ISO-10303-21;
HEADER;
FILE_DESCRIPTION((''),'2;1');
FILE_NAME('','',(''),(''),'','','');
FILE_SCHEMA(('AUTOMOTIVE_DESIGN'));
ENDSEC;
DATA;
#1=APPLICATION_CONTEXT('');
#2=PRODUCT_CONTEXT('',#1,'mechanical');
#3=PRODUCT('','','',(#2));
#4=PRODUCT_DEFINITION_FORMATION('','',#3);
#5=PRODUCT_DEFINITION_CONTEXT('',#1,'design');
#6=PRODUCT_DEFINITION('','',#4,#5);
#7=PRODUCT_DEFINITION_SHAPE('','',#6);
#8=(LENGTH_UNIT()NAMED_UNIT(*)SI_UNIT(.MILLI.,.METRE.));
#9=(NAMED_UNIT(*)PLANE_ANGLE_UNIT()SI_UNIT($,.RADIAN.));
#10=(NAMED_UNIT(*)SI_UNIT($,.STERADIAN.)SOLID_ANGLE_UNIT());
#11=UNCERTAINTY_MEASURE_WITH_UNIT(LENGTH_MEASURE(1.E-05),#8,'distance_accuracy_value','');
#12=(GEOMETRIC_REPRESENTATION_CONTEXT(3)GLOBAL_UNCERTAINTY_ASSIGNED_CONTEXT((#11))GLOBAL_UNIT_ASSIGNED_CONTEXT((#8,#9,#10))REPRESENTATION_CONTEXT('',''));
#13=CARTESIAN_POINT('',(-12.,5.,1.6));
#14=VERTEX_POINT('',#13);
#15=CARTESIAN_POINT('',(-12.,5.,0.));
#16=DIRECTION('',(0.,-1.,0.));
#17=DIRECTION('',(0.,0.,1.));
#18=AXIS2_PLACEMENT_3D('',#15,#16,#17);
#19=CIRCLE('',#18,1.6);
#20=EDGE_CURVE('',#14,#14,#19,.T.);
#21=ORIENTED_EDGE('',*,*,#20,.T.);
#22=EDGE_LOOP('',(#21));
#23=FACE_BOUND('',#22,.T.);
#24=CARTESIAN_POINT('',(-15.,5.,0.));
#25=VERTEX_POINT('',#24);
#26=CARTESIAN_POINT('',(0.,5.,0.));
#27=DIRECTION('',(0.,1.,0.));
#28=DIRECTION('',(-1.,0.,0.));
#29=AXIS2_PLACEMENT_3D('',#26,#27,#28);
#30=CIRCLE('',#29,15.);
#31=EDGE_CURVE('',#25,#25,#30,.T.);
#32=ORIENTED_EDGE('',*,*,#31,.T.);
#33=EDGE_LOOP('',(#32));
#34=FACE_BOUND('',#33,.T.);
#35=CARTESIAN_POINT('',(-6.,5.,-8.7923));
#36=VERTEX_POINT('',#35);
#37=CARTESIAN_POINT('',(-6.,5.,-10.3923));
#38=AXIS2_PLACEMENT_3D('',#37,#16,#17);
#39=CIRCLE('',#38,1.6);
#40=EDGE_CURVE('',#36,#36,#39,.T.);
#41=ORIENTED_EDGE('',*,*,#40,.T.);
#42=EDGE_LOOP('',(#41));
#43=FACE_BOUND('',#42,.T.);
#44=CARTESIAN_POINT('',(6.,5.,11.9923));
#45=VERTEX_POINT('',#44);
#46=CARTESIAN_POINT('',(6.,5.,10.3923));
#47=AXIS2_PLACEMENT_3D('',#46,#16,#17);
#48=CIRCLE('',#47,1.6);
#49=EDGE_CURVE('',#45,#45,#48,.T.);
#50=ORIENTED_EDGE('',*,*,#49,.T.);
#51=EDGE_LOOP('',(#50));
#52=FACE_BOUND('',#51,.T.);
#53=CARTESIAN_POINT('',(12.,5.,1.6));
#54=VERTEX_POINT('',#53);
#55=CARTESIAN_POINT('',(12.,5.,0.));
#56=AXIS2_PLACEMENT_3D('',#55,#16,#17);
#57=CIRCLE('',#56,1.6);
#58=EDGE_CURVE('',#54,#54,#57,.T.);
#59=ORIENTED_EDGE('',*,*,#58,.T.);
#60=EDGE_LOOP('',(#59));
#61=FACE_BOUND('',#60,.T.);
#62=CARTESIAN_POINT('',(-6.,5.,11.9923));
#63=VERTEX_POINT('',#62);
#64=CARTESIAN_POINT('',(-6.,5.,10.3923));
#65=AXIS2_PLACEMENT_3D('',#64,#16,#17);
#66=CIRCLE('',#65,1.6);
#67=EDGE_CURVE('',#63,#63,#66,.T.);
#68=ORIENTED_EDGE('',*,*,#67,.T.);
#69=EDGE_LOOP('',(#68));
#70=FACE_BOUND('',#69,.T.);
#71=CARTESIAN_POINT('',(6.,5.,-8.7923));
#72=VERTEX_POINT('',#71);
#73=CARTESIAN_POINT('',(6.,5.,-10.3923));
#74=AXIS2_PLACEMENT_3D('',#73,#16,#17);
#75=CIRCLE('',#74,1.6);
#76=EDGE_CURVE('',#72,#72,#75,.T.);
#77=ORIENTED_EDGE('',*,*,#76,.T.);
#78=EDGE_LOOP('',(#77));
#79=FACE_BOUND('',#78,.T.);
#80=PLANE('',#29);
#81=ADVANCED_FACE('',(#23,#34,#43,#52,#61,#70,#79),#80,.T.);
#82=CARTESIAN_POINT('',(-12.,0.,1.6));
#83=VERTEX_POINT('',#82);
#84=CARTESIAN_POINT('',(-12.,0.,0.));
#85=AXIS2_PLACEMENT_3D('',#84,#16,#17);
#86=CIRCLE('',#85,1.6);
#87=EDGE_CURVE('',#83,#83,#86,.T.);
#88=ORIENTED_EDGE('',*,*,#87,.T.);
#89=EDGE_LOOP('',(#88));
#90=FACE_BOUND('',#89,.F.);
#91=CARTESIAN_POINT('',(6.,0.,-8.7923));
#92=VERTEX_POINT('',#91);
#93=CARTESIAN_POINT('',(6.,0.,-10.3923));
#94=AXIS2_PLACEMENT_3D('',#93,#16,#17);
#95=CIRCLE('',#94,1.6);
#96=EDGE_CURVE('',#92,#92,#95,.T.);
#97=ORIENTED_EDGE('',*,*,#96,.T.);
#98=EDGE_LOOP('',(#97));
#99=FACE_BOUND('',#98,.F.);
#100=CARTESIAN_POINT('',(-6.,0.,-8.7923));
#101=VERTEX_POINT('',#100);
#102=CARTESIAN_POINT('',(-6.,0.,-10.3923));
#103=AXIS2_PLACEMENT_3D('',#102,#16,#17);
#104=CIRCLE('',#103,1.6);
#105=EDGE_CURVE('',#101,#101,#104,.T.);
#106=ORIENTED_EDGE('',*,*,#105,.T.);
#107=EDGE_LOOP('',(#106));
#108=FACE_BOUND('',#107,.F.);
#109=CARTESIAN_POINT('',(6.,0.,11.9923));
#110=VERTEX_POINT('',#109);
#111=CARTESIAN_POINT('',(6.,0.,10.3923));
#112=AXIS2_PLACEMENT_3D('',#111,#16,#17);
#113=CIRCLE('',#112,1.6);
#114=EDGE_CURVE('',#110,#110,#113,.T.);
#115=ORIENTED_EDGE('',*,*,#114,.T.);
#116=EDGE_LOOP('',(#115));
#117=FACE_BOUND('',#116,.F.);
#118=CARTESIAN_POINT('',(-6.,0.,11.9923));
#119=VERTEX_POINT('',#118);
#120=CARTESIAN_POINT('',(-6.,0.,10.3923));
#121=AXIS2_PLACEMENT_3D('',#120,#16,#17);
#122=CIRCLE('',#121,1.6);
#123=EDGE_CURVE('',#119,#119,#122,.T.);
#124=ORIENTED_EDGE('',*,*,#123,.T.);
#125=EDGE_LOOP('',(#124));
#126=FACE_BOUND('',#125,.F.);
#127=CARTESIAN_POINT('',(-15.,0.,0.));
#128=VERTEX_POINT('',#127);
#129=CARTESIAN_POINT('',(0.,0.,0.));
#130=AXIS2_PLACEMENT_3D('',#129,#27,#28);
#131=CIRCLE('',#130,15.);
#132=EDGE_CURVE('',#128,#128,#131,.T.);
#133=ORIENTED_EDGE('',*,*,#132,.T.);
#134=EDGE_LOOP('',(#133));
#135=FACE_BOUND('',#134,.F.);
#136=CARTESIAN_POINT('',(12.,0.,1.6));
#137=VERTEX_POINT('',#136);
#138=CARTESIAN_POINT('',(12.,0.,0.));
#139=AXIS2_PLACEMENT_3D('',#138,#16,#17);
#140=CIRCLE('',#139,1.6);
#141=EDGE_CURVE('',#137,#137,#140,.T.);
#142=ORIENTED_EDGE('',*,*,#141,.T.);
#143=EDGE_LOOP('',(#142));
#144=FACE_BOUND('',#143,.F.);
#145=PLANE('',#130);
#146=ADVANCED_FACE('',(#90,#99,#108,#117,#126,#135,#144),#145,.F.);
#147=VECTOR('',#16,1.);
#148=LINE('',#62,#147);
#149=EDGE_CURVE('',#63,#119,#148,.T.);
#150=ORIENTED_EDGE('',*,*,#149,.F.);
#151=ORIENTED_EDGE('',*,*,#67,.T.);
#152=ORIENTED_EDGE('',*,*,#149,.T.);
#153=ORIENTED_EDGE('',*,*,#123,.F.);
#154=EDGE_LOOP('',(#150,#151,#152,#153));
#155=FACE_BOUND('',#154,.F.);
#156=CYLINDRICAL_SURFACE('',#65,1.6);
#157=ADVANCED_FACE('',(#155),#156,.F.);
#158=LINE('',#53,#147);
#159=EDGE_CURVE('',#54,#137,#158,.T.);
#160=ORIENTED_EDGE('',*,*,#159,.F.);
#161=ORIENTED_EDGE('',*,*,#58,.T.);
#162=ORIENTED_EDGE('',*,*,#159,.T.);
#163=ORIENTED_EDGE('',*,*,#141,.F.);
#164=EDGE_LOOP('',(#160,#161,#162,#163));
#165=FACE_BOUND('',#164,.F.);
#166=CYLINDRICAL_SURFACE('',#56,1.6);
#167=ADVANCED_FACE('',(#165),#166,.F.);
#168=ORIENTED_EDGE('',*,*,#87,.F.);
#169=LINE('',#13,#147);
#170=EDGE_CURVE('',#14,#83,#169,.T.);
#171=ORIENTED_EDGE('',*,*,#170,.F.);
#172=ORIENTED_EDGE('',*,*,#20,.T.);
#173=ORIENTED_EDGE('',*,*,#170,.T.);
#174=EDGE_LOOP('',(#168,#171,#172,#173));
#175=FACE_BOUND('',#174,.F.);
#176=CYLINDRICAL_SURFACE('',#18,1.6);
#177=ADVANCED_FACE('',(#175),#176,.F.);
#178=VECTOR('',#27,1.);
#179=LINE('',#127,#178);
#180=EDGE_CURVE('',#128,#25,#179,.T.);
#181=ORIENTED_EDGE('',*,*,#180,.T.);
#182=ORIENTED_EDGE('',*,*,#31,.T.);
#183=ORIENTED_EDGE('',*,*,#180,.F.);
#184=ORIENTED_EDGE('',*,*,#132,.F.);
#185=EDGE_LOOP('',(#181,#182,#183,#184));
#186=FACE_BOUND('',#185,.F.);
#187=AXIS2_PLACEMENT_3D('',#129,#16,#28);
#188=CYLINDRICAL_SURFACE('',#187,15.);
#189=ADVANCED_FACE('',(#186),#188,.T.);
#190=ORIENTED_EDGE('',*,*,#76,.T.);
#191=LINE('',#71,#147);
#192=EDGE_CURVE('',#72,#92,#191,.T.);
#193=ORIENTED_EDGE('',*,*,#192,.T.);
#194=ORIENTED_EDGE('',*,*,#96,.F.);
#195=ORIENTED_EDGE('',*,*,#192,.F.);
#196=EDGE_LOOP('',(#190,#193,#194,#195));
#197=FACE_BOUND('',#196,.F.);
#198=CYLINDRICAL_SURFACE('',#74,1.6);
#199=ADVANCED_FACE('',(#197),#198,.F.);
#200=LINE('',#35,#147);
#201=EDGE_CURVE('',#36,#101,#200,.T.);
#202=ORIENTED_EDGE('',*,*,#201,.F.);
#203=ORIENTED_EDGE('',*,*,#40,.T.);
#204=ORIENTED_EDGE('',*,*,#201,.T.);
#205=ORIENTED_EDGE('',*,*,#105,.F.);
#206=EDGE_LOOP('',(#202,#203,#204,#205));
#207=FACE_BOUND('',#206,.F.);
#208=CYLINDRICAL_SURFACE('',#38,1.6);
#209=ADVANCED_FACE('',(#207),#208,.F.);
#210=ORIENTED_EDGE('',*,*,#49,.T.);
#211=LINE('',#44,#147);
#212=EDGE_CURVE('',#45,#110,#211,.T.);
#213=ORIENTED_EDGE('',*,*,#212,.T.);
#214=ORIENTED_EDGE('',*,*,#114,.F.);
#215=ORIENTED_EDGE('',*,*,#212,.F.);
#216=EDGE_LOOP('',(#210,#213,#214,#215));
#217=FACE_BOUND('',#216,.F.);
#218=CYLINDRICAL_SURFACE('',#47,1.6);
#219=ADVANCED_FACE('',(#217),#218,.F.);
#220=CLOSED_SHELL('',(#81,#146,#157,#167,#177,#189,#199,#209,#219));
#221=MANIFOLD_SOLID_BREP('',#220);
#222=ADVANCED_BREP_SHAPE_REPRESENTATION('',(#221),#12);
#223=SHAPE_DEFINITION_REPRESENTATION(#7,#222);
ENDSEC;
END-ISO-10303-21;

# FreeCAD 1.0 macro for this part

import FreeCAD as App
import Part
import Sketcher
from FreeCAD import Vector
Q = App.Units.Quantity

doc = App.newDocument("Part")
body = doc.addObject("PartDesign::Body", "Body")

sketch1 = body.newObject("Sketcher::SketchObject", "Sketch")
sketch1.AttachmentSupport = (doc.getObject("XZ_Plane"), [""])
sketch1.MapMode = "FlatFace"
sketch1.addGeometry(Part.Circle(Vector(0, 0, 0), Vector(0, 0, 1), 15), False)
sketch1.addConstraint(Sketcher.Constraint("Coincident", 0, 3, -1, 1))
sketch1.addConstraint(Sketcher.Constraint("Diameter", 0, Q("30 mm")))
pad1 = body.newObject("PartDesign::Pad", "Pad")
pad1.Profile = sketch1
pad1.Length = 5
pad1.Reversed = True

sketch2 = body.newObject("Sketcher::SketchObject", "Sketch001")
sketch2.AttachmentSupport = (doc.getObject("XZ_Plane"), [""])
sketch2.MapMode = "FlatFace"
sketch2.AttachmentOffset = App.Placement(Vector(0, 0, -5), App.Rotation())
sketch2.addGeometry(Part.Circle(Vector(-12, 0, 0), Vector(0, 0, 1), 1.6), False)
sketch2.addGeometry(Part.Circle(Vector(-6, 10.4, 0), Vector(0, 0, 1), 1.6), False)
sketch2.addGeometry(Part.Circle(Vector(6, 10.4, 0), Vector(0, 0, 1), 1.6), False)
sketch2.addGeometry(Part.Circle(Vector(12, 0, 0), Vector(0, 0, 1), 1.6), False)
sketch2.addGeometry(Part.Circle(Vector(6, -10.4, 0), Vector(0, 0, 1), 1.6), False)
sketch2.addGeometry(Part.Circle(Vector(-6, -10.4, 0), Vector(0, 0, 1), 1.6), False)
sketch2.addConstraint(Sketcher.Constraint("Equal", 0, 1))
sketch2.addConstraint(Sketcher.Constraint("Equal", 1, 2))
sketch2.addConstraint(Sketcher.Constraint("Equal", 2, 3))
sketch2.addConstraint(Sketcher.Constraint("Equal", 3, 4))
sketch2.addConstraint(Sketcher.Constraint("Equal", 4, 5))
sketch2.addConstraint(Sketcher.Constraint("Symmetric", 0, 3, 3, 3, -1, 1))
sketch2.addConstraint(Sketcher.Constraint("Symmetric", 1, 3, 4, 3, -1, 1))
sketch2.addConstraint(Sketcher.Constraint("Symmetric", 2, 3, 5, 3, -1, 1))
sketch2.addConstraint(Sketcher.Constraint("Symmetric", 1, 3, 2, 3, -2))
sketch2.addConstraint(Sketcher.Constraint("PointOnObject", 0, 3, -1))
sketch2.addConstraint(Sketcher.Constraint("Diameter", 0, Q("3.2 mm")))
sketch2.addConstraint(Sketcher.Constraint("DistanceX", 0, 3, -1, 1, Q("12 mm")))
sketch2.addConstraint(Sketcher.Constraint("DistanceX", 1, 3, -1, 1, Q("6 mm")))
sketch2.addConstraint(Sketcher.Constraint("DistanceY", -1, 1, 1, 3, Q("10.3923 mm")))
doc.recompute()
hole = body.newObject("PartDesign::Hole", "Hole")
hole.Profile = sketch2
hole.ThreadType = "None"
hole.Diameter = 3.2
hole.DepthType = "ThroughAll"
hole.Reversed = True

doc.recompute()
